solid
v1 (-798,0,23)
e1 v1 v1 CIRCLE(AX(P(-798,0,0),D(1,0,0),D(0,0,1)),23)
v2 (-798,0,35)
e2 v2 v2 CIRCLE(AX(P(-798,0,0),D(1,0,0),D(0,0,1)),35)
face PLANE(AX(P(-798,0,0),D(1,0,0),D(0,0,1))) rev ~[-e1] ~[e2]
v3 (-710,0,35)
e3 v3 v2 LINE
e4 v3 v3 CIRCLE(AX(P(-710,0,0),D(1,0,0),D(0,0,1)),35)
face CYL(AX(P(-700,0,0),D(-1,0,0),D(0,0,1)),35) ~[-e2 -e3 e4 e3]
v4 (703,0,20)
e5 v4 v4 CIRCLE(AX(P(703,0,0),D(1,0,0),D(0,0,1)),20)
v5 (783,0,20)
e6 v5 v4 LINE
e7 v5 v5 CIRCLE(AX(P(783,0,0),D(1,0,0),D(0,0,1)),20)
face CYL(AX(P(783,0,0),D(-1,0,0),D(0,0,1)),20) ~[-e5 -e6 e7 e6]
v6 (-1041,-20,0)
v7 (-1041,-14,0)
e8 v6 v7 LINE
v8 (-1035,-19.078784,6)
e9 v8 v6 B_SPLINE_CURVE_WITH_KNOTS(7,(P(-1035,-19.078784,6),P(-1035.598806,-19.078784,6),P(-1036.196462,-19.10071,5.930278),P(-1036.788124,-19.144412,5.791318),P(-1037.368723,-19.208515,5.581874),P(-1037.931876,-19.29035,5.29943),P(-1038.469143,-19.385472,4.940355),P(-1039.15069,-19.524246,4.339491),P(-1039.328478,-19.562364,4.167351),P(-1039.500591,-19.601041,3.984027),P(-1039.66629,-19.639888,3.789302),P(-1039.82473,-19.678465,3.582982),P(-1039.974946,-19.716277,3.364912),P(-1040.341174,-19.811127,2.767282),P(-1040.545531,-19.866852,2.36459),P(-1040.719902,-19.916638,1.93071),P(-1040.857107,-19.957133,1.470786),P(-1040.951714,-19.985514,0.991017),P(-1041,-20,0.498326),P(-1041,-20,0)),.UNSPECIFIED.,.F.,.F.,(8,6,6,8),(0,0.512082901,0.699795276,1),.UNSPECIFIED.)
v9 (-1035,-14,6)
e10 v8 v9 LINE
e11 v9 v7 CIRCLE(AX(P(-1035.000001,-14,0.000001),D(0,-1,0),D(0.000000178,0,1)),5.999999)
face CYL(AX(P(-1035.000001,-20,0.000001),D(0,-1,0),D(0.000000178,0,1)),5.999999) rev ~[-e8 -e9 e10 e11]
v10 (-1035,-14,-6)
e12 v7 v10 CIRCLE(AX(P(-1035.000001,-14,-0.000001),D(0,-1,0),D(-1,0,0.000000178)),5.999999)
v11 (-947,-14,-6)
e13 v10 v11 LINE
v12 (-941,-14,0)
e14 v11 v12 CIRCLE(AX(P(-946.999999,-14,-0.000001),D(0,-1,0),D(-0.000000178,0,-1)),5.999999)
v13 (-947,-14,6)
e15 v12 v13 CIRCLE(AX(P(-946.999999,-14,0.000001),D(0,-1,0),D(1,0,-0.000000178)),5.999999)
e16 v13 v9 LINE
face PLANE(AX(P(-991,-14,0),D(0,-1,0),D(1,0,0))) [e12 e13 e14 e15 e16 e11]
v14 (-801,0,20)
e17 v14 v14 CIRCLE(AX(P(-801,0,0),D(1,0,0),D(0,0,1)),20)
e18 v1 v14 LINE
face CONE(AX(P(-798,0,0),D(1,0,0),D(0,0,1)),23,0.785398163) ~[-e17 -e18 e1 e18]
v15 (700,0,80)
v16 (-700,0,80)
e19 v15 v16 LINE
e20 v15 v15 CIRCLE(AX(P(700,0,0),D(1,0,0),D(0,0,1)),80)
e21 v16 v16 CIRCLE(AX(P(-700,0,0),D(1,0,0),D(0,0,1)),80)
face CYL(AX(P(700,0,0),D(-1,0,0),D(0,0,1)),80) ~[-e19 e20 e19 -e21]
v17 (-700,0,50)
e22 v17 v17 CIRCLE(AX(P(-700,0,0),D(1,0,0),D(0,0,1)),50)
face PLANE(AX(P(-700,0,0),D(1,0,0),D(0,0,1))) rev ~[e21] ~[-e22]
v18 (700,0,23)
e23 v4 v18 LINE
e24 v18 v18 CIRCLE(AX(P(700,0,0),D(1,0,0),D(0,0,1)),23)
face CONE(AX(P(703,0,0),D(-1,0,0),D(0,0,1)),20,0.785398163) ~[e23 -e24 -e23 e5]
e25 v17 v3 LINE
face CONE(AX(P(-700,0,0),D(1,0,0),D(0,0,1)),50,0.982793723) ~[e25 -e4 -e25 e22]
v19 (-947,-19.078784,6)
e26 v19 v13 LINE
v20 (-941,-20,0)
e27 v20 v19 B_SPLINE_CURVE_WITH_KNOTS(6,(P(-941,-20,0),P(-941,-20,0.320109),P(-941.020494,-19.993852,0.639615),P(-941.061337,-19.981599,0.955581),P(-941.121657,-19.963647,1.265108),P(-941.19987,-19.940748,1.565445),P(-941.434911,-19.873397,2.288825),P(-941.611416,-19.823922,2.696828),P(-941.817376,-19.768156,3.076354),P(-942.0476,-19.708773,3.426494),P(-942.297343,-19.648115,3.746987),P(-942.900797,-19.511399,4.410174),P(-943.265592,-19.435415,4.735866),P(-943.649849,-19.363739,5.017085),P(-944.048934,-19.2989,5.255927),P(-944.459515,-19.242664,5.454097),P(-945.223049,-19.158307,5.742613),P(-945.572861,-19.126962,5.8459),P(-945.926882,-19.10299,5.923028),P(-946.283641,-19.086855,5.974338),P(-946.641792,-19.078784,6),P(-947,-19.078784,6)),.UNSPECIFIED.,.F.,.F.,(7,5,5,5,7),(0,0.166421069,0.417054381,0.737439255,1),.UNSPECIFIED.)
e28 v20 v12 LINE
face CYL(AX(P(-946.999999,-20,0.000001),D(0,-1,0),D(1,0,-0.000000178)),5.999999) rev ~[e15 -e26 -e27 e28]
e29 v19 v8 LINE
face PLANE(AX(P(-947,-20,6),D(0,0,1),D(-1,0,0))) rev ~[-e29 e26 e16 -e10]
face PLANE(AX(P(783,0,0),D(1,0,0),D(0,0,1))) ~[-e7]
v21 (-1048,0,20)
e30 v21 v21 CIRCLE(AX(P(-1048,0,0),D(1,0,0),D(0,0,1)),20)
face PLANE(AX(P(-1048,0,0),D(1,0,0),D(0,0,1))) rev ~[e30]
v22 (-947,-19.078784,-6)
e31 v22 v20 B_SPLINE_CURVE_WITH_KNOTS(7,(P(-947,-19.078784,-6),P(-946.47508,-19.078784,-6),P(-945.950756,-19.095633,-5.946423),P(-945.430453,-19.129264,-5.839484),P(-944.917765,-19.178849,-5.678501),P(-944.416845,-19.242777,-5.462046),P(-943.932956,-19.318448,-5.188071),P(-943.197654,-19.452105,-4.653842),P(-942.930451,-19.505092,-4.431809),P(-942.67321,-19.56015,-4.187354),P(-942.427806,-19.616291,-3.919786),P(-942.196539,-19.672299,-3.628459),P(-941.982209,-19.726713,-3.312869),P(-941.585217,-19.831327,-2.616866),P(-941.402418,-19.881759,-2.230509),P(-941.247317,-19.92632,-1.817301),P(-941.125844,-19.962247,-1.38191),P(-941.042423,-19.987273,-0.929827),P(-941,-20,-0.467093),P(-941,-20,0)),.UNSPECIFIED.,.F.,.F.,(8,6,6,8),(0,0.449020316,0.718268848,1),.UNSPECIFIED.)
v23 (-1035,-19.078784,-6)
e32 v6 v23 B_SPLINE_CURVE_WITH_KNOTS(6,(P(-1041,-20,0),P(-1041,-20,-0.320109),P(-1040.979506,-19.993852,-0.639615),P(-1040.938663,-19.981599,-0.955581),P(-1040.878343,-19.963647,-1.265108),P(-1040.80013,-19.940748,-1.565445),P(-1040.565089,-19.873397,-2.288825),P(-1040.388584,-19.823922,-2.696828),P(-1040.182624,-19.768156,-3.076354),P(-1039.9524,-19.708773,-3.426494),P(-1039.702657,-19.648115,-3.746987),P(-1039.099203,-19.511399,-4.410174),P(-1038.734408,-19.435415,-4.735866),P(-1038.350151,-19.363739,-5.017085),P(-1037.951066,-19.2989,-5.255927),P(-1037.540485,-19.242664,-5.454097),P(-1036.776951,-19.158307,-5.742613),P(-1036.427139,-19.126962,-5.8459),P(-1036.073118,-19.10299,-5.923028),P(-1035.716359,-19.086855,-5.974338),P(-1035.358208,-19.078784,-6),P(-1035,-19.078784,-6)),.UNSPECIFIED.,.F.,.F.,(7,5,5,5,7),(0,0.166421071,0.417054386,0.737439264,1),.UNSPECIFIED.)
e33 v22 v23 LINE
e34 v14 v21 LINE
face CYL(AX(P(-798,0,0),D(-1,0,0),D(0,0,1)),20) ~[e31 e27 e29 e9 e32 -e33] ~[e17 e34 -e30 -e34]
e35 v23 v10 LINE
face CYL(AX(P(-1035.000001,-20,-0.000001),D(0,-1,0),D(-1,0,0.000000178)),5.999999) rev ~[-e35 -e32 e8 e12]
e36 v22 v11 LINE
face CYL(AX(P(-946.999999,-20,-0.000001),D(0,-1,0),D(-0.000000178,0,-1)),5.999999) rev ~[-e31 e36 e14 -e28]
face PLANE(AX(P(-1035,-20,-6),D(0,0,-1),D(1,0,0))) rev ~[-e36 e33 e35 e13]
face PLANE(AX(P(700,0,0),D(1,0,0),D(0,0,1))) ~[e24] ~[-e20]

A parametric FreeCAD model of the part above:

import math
import FreeCAD as App
import Part
import Sketcher


def add_polygon(sketch, points):
    """Adds a closed chain of lines whose ends are joined by coincident constraints."""
    first, n = sketch.GeometryCount, len(points)
    for a, b in zip(points, points[1:] + points[:1]):
        sketch.addGeometry(Part.LineSegment(App.Vector(*a, 0), App.Vector(*b, 0)), False)
    for i in range(n):
        sketch.addConstraint(Sketcher.Constraint("Coincident", first + i, 2, first + (i + 1) % n, 1))

doc = App.newDocument("Part")
params = doc.addObject("Spreadsheet::Sheet", "Params")
for row, (alias, value) in enumerate([
    ("sketch1_width", "1831 mm"),
    ("sketch1_width2", "80 mm"),
    ("sketch1_width3", "1400 mm"),
    ("sketch1_width4", "88 mm"),
    ("sketch1_width5", "247 mm"),
    ("revolution_angle", "360 deg"),
    ("sketch2_radius", "5.999999 mm"),
    ("sketch2_width", "88 mm"),
    ("pocket1_length", "6 mm"),
], start=1):
    params.set(f"A{row}", alias)
    params.set(f"B{row}", "=" + value)
    params.setAlias(f"B{row}", alias)

body = doc.addObject("PartDesign::Body", "Body")

# Sketch on XZ plane
sketch1 = body.newObject("Sketcher::SketchObject", "Sketch")
sketch1.AttachmentSupport = (doc.getObject("XZ_Plane"), [""])
sketch1.MapMode = "FlatFace"
add_polygon(sketch1, [(-1048, 0), (783, 0), (783, 20), (703, 20), (700, 23), (700, 80), (-700, 80), (-700, 50), (-710, 35), (-798, 35), (-798, 23), (-801, 20), (-1048, 20)])  # lines 0-12
sketch1.addConstraint(Sketcher.Constraint("Horizontal", 0))
sketch1.addConstraint(Sketcher.Constraint("Vertical", 1))
sketch1.addConstraint(Sketcher.Constraint("Horizontal", 2))
sketch1.addConstraint(Sketcher.Constraint("Vertical", 4))
sketch1.addConstraint(Sketcher.Constraint("Horizontal", 5))
sketch1.addConstraint(Sketcher.Constraint("Vertical", 6))
sketch1.addConstraint(Sketcher.Constraint("Horizontal", 8))
sketch1.addConstraint(Sketcher.Constraint("Vertical", 9))
sketch1.addConstraint(Sketcher.Constraint("Horizontal", 11))
sketch1.addConstraint(Sketcher.Constraint("Vertical", 12))
sketch1.addConstraint(Sketcher.Constraint("PointOnObject", 0, 2, -1))
sketch1.addConstraint(Sketcher.Constraint("Perpendicular", 3, 10))
sketch1.addConstraint(Sketcher.Constraint("Horizontal", 3, 2, 9, 2))
sketch1.addConstraint(Sketcher.Constraint("Horizontal", 2, 2, 10, 2))
sketch1.addConstraint(Sketcher.Constraint("Equal", 3, 10))
sketch1.addConstraint(Sketcher.Constraint("DistanceX", 0, 1, 0, 2, 1831.0))
sketch1.addConstraint(Sketcher.Constraint("DistanceX", 2, 2, 2, 1, 80.0))
sketch1.addConstraint(Sketcher.Constraint("DistanceX", 5, 2, 5, 1, 1400.0))
sketch1.addConstraint(Sketcher.Constraint("DistanceX", 8, 2, 8, 1, 88.0))
sketch1.addConstraint(Sketcher.Constraint("DistanceX", 11, 2, 11, 1, 247.0))
sketch1.addConstraint(Sketcher.Constraint("DistanceY", 1, 1, 1, 2, 20.0))
sketch1.addConstraint(Sketcher.Constraint("DistanceY", 4, 1, 4, 2, 57.0))
sketch1.addConstraint(Sketcher.Constraint("DistanceY", 6, 2, 6, 1, 30.0))
sketch1.addConstraint(Sketcher.Constraint("DistanceY", 9, 2, 9, 1, 12.0))
sketch1.addConstraint(Sketcher.Constraint("DistanceX", -1, 1, 0, 2, 783.0))
sketch1.addConstraint(Sketcher.Constraint("DistanceX", -1, 1, 3, 2, 700.0))
sketch1.setExpression("Constraints[28]", "Params.sketch1_width")
sketch1.setExpression("Constraints[29]", "Params.sketch1_width2")
sketch1.setExpression("Constraints[30]", "Params.sketch1_width3")
sketch1.setExpression("Constraints[31]", "Params.sketch1_width4")
sketch1.setExpression("Constraints[32]", "Params.sketch1_width5")
revolution = body.newObject("PartDesign::Revolution", "Revolution")
revolution.Profile = sketch1
revolution.ReferenceAxis = (sketch1, ["H_Axis"])
revolution.setExpression("Angle", "Params.revolution_angle")

# Sketch on XZ plane
sketch2 = body.newObject("Sketcher::SketchObject", "Sketch001")
sketch2.AttachmentSupport = (doc.getObject("XZ_Plane"), [""])
sketch2.MapMode = "FlatFace"
sketch2.AttachmentOffset = App.Placement(App.Vector(0, 0, 20), App.Rotation())
sketch2.addGeometry(Part.ArcOfCircle(Part.Circle(App.Vector(-947, 0, 0), App.Vector(0, 0, 1), 6), math.radians(0), math.radians(90)), False)
sketch2.addGeometry(Part.LineSegment(App.Vector(-947, 6, 0), App.Vector(-1035, 6, 0)), False)
sketch2.addGeometry(Part.ArcOfCircle(Part.Circle(App.Vector(-1035, 0, 0), App.Vector(0, 0, 1), 6), math.radians(90), math.radians(180)), False)
sketch2.addGeometry(Part.ArcOfCircle(Part.Circle(App.Vector(-1035, 0, 0), App.Vector(0, 0, 1), 6), math.radians(180), math.radians(270)), False)
sketch2.addGeometry(Part.LineSegment(App.Vector(-1035, -6, 0), App.Vector(-947, -6, 0)), False)
sketch2.addGeometry(Part.ArcOfCircle(Part.Circle(App.Vector(-947, 0, 0), App.Vector(0, 0, 1), 6), math.radians(-90), math.radians(0)), False)
sketch2.addConstraint(Sketcher.Constraint("Tangent", 0, 2, 1, 1))
sketch2.addConstraint(Sketcher.Constraint("Tangent", 1, 2, 2, 1))
sketch2.addConstraint(Sketcher.Constraint("Tangent", 2, 2, 3, 1))
sketch2.addConstraint(Sketcher.Constraint("Tangent", 3, 2, 4, 1))
sketch2.addConstraint(Sketcher.Constraint("Tangent", 4, 2, 5, 1))
sketch2.addConstraint(Sketcher.Constraint("Tangent", 5, 2, 0, 1))
sketch2.addConstraint(Sketcher.Constraint("Horizontal", 1))
sketch2.addConstraint(Sketcher.Constraint("Horizontal", 4))
sketch2.addConstraint(Sketcher.Constraint("Equal", 0, 2))
sketch2.addConstraint(Sketcher.Constraint("Equal", 2, 3))
sketch2.addConstraint(Sketcher.Constraint("PointOnObject", 0, 3, -1))
sketch2.addConstraint(Sketcher.Constraint("PointOnObject", 2, 2, -1))
sketch2.addConstraint(Sketcher.Constraint("PointOnObject", 5, 2, -1))
sketch2.addConstraint(Sketcher.Constraint("Radius", 0, 5.999999))
sketch2.addConstraint(Sketcher.Constraint("DistanceX", 1, 2, 1, 1, 88.0))
sketch2.addConstraint(Sketcher.Constraint("DistanceX", 0, 3, -1, 1, 946.999999))
sketch2.setExpression("Constraints[13]", "Params.sketch2_radius")
sketch2.setExpression("Constraints[14]", "Params.sketch2_width")
pocket1 = body.newObject("PartDesign::Pocket", "Pocket")
pocket1.Profile = sketch2
pocket1.setExpression("Length", "Params.pocket1_length")

doc.recompute()
